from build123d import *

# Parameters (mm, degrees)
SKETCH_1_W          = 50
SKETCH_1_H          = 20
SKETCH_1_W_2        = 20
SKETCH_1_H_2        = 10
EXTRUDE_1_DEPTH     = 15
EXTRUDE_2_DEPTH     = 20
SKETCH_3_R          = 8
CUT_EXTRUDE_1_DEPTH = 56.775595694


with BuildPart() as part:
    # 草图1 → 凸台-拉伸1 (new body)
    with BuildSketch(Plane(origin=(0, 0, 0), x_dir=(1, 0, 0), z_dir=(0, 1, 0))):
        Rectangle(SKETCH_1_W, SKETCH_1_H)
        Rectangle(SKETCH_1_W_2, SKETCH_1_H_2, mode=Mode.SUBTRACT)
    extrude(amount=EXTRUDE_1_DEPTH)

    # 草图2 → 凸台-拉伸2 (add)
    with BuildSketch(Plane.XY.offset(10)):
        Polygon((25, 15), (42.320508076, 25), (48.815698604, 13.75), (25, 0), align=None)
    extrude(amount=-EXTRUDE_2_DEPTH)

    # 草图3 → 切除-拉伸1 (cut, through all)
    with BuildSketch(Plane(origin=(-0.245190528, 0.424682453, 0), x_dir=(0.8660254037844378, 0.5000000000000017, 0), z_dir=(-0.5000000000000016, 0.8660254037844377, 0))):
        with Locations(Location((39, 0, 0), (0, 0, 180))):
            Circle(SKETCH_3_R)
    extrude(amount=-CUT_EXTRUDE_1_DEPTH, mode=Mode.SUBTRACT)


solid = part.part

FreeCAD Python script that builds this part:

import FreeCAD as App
import Part
import Sketcher
Q = App.Units.Quantity


def add_polygon(sketch, points):
    """Adds a closed chain of lines whose ends are joined by coincident constraints."""
    first, n = sketch.GeometryCount, len(points)
    for a, b in zip(points, points[1:] + points[:1]):
        sketch.addGeometry(Part.LineSegment(App.Vector(*a, 0), App.Vector(*b, 0)), False)
    for i in range(n):
        sketch.addConstraint(Sketcher.Constraint("Coincident", first + i, 2, first + (i + 1) % n, 1))

doc = App.newDocument("Part")
body = doc.addObject("PartDesign::Body", "Body")

sketch1 = body.newObject("Sketcher::SketchObject", "Sketch")
sketch1.AttachmentSupport = (doc.getObject("XZ_Plane"), [""])
sketch1.MapMode = "FlatFace"
add_polygon(sketch1, [(-25, -10), (-25, 10), (25, 10), (25, -10)])
add_polygon(sketch1, [(10, 5), (-10, 5), (-10, -5), (10, -5)])
sketch1.addConstraint([
    Sketcher.Constraint("Vertical", 0),
    Sketcher.Constraint("Horizontal", 1),
    Sketcher.Constraint("Vertical", 2),
    Sketcher.Constraint("Horizontal", 3),
    Sketcher.Constraint("Horizontal", 4),
    Sketcher.Constraint("Vertical", 5),
    Sketcher.Constraint("Horizontal", 6),
    Sketcher.Constraint("Vertical", 7),
    Sketcher.Constraint("Symmetric", 0, 2, 2, 2, -1, 1),
    Sketcher.Constraint("Symmetric", 4, 2, 6, 2, -1, 1),
    Sketcher.Constraint("Equal", 6, 0),
    Sketcher.Constraint("DistanceX", 1, 1, 1, 2, Q("50 mm")),
    Sketcher.Constraint("DistanceX", 4, 2, 4, 1, Q("20 mm")),
    Sketcher.Constraint("DistanceY", 5, 2, 5, 1, Q("10 mm")),
])
pad1 = body.newObject("PartDesign::Pad", "Pad")
pad1.Profile = sketch1
pad1.Length = 15
pad1.Reversed = True

sketch2 = body.newObject("Sketcher::SketchObject", "Sketch001")
sketch2.AttachmentSupport = (doc.getObject("XY_Plane"), [""])
sketch2.MapMode = "FlatFace"
sketch2.AttachmentOffset = App.Placement(App.Vector(0, 0, 10), App.Rotation())
add_polygon(sketch2, [(42, 25), (25, 15), (25, 0), (49, 14)])
sketch2.addConstraint([
    Sketcher.Constraint("Vertical", 1),
    Sketcher.Constraint("PointOnObject", 1, 2, -1),
    Sketcher.Constraint("Parallel", 0, 2),
    Sketcher.Constraint("Perpendicular", 2, 3),
    Sketcher.Constraint("DistanceY", 1, 2, 1, 1, Q("15 mm")),
    Sketcher.Constraint("Angle", 0, Q("-150 deg")),
    Sketcher.Constraint("Distance", 0, Q("20 mm")),
    Sketcher.Constraint("DistanceX", -1, 1, 0, 2, Q("25 mm")),
])
pad2 = body.newObject("PartDesign::Pad", "Pad001")
pad2.Profile = sketch2
pad2.Length = 20
pad2.Reversed = True

sketch3 = body.newObject("Sketcher::SketchObject", "Sketch002")
sketch3.Placement = App.Placement(App.Vector(-0.245191, 0.424682, 0), App.Rotation(App.Vector(0.866025404, 0.5, 0), App.Vector(0, 0, -1), App.Vector(-0.5, 0.866025404, 0), "ZXY"))
sketch3.addGeometry(Part.Circle(App.Vector(39, 0, 0), App.Vector(0, 0, 1), 8), False)
sketch3.addConstraint([
    Sketcher.Constraint("PointOnObject", 0, 3, -1),
    Sketcher.Constraint("Diameter", 0, Q("16 mm")),
    Sketcher.Constraint("DistanceX", -1, 1, 0, 3, Q("39 mm")),
])
pocket1 = body.newObject("PartDesign::Pocket", "Pocket")
pocket1.Profile = sketch3
pocket1.Type = "ThroughAll"

doc.recompute()
